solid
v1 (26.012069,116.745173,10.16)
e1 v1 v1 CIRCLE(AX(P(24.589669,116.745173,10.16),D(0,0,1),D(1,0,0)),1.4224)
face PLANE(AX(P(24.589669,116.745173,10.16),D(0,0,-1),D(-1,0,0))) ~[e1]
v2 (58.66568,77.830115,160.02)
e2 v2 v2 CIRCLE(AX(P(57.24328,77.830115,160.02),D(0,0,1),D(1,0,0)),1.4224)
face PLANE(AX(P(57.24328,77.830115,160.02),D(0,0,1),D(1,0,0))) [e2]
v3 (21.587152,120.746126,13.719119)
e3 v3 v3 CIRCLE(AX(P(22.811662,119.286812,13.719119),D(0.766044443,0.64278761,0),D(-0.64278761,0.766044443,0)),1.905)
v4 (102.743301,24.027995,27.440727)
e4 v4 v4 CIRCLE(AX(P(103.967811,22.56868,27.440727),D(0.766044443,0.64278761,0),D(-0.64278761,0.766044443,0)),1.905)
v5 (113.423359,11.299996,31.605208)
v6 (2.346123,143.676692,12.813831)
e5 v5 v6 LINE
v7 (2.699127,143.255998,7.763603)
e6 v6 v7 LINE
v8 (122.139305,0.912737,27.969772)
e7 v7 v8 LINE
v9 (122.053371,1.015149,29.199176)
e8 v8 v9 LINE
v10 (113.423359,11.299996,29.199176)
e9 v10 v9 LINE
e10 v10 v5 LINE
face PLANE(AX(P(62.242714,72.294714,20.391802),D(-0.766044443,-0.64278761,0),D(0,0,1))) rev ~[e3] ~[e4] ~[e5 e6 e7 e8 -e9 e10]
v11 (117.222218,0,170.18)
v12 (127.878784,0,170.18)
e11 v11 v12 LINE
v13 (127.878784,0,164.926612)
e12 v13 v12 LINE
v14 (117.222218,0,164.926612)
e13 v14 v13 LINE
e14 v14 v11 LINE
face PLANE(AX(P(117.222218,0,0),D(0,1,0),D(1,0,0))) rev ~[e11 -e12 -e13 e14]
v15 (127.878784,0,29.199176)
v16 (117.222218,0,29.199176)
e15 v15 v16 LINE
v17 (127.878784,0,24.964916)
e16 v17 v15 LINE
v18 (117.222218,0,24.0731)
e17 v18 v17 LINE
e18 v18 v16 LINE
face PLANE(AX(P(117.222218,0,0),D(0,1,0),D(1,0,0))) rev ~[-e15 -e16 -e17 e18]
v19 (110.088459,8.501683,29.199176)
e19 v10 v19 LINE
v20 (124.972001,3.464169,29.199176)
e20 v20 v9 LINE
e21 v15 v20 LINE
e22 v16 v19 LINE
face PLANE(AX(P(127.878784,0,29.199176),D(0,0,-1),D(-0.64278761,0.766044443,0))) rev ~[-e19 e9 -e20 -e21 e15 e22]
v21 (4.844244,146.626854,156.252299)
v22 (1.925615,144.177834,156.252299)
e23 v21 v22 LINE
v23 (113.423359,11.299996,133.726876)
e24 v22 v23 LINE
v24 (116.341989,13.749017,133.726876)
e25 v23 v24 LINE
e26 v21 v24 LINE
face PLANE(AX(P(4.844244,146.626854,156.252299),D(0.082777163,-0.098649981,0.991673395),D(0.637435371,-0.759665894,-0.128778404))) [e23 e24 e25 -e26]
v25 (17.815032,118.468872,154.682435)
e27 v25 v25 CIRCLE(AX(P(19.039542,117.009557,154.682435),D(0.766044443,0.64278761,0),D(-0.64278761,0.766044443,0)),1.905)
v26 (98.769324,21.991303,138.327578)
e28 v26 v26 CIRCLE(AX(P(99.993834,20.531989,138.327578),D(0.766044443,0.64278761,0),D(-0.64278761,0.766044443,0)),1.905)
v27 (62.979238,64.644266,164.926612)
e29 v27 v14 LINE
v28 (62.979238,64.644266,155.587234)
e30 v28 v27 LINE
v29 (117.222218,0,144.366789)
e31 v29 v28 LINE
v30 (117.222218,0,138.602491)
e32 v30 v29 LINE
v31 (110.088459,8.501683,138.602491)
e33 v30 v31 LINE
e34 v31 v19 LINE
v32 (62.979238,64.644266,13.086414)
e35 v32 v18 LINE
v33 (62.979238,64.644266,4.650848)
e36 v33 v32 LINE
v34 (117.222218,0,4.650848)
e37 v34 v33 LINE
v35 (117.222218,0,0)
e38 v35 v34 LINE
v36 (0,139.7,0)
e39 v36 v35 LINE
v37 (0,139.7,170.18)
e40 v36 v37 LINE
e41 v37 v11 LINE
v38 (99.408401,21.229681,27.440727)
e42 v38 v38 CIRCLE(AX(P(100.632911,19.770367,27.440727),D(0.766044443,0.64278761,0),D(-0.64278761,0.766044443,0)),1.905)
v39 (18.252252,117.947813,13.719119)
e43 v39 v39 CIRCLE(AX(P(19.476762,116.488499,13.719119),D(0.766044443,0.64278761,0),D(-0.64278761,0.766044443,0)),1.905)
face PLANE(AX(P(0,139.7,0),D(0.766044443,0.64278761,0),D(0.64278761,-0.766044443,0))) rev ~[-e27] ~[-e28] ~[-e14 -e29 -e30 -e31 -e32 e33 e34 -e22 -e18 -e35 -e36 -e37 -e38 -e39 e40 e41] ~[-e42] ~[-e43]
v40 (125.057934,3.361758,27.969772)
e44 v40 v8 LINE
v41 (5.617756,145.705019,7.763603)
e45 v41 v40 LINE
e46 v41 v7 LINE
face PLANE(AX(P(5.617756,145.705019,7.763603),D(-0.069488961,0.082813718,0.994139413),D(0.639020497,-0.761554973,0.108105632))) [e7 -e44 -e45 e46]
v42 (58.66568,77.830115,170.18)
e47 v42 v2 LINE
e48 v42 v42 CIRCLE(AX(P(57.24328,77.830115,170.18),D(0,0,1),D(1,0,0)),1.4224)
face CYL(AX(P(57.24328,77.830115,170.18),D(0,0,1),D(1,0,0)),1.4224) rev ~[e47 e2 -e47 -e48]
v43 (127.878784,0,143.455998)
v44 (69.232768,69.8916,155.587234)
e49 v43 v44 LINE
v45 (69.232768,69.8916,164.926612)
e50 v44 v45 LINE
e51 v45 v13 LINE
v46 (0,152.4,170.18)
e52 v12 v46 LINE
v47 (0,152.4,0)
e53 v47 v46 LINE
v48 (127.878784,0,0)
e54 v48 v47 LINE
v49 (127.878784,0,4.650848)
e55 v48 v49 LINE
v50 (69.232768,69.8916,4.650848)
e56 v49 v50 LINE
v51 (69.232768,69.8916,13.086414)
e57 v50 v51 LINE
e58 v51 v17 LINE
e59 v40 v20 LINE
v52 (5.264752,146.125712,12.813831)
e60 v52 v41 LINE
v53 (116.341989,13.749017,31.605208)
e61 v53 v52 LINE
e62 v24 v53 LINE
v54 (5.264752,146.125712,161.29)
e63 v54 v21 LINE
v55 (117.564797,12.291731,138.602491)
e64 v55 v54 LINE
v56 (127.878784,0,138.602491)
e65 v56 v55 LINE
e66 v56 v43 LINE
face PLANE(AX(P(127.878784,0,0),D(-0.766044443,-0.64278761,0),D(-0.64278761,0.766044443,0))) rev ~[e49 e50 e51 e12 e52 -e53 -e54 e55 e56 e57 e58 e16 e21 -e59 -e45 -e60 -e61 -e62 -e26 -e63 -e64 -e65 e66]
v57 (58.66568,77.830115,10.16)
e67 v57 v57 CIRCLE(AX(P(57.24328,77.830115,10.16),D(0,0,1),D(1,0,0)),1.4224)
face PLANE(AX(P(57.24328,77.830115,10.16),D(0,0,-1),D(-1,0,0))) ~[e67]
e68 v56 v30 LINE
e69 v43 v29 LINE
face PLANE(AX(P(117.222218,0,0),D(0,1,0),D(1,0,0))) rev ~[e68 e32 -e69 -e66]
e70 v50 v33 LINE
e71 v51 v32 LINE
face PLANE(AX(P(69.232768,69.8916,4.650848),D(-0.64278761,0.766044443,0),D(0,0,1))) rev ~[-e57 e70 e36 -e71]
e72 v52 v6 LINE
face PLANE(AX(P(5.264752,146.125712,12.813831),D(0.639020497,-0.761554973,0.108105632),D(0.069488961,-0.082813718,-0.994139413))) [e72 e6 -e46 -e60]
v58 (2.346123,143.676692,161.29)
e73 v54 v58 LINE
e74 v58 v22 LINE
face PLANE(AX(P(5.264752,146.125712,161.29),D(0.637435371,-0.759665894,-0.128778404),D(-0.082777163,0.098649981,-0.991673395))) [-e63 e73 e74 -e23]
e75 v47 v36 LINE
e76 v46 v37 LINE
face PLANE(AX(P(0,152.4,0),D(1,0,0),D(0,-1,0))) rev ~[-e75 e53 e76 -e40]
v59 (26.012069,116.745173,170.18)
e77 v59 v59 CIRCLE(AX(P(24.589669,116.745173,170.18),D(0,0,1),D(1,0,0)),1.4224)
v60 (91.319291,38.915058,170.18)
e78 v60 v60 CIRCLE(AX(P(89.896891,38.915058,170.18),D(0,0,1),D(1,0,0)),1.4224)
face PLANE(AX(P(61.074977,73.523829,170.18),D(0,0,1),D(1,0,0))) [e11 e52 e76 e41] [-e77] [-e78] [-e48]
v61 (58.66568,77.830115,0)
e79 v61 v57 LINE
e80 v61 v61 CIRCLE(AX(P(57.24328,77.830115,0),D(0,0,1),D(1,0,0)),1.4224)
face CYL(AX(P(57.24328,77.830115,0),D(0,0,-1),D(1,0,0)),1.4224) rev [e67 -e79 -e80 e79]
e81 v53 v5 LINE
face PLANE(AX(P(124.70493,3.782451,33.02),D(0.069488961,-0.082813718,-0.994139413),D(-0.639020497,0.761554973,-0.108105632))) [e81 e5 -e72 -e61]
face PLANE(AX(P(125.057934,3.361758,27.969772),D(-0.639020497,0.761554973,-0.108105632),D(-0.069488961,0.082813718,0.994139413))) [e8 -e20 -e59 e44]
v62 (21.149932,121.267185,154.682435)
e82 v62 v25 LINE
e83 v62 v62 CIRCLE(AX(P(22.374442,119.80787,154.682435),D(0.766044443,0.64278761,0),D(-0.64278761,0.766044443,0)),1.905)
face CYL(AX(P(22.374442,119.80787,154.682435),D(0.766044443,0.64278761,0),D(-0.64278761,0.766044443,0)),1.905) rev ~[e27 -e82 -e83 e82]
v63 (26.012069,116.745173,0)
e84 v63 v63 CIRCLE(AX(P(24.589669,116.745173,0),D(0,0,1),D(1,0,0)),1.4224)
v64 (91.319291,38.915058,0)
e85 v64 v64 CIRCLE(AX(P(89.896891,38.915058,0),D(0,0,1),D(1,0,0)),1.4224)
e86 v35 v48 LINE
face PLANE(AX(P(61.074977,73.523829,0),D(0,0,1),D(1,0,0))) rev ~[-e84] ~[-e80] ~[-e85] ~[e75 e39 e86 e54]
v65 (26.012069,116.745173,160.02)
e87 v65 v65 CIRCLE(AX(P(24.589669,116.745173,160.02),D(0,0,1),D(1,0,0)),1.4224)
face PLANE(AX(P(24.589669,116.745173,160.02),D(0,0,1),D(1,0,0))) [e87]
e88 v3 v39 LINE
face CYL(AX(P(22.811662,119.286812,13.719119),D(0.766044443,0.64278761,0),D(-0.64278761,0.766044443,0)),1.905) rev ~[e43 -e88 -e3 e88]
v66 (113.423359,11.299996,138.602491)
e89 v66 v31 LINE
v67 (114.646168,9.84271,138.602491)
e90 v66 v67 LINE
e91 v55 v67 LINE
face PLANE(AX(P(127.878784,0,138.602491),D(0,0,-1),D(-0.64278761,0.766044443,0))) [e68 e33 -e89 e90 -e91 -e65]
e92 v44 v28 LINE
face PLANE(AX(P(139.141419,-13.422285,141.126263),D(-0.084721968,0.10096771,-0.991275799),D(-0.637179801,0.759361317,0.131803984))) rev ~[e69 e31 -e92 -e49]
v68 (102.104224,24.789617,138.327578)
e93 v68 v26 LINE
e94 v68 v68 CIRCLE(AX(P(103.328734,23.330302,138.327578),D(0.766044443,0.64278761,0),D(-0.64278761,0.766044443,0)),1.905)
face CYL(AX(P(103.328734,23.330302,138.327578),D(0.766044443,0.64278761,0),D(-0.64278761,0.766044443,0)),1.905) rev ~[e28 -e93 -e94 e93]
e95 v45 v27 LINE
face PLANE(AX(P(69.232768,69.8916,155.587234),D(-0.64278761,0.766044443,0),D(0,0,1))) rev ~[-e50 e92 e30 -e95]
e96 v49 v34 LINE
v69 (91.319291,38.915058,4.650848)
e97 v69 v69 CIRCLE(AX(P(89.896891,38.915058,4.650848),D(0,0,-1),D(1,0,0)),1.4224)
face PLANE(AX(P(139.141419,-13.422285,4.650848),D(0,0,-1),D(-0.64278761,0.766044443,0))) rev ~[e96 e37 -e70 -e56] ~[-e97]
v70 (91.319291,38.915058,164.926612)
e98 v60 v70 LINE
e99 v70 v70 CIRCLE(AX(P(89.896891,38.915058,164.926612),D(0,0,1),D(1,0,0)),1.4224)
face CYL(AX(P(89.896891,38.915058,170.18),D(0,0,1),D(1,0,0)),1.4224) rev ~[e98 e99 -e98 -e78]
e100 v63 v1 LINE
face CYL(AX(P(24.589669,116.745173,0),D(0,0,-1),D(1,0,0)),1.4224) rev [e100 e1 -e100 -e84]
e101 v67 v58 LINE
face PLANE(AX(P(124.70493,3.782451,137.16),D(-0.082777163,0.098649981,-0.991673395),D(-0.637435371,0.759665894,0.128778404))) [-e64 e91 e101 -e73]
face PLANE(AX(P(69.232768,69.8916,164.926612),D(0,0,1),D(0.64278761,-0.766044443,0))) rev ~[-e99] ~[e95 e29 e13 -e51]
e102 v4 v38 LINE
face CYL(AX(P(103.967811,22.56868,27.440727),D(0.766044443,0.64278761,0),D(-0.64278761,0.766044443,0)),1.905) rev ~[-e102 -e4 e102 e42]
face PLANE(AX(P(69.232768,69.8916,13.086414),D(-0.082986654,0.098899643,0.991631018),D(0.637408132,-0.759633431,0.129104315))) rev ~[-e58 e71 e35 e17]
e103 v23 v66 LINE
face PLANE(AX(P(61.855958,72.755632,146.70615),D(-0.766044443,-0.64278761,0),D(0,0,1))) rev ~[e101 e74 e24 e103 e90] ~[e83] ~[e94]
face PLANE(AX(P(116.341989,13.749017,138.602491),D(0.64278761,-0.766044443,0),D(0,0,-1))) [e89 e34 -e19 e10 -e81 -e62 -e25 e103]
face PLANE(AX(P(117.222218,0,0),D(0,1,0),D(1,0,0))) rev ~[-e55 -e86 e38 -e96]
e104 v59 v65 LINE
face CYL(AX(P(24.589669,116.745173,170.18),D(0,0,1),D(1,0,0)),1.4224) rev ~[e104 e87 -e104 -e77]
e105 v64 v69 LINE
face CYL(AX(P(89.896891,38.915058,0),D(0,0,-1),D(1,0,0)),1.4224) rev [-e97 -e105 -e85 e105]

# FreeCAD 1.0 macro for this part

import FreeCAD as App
import Part
import Sketcher
from FreeCAD import Vector
Q = App.Units.Quantity

doc = App.newDocument("Part")
body = doc.addObject("PartDesign::Body", "Body")

# Sketch on XY plane
sketch1 = body.newObject("Sketcher::SketchObject", "Sketch")
sketch1.AttachmentSupport = (doc.getObject("XY_Plane"), [""])
sketch1.MapMode = "FlatFace"
sketch1.addGeometry([
    Part.LineSegment(Vector(0, 140, 0), Vector(117, 0, 0)),
    Part.LineSegment(Vector(117, 0, 0), Vector(128, 0, 0)),
    Part.LineSegment(Vector(128, 0, 0), Vector(0, 152, 0)),
    Part.LineSegment(Vector(0, 152, 0), Vector(0, 140, 0)),
], False)
sketch1.addConstraint([
    Sketcher.Constraint("Coincident", 0, 2, 1, 1),
    Sketcher.Constraint("Coincident", 1, 2, 2, 1),
    Sketcher.Constraint("Coincident", 2, 2, 3, 1),
    Sketcher.Constraint("Coincident", 3, 2, 0, 1),
    Sketcher.Constraint("Horizontal", 1),
    Sketcher.Constraint("Vertical", 3),
    Sketcher.Constraint("PointOnObject", 0, 2, -1),
    Sketcher.Constraint("PointOnObject", 2, 2, -2),
    Sketcher.Constraint("Parallel", 0, 2),
    Sketcher.Constraint("DistanceY", 3, 2, 3, 1, Q("0.5 in")),
    Sketcher.Constraint("DistanceY", -1, 1, 2, 2, Q("6 in")),
    Sketcher.Constraint("Angle", 0, Q("-50 deg")),
])
pad1 = body.newObject("PartDesign::Pad", "Pad")
pad1.Profile = sketch1
pad1.Length = Q("6.7 in")

# Sketch on an angled plane
sketch2 = body.newObject("Sketcher::SketchObject", "Sketch001")
sketch2.Placement = App.Placement(Vector(75.042351, 62.968009, 0), App.Rotation(Vector(0, 0, -1), Vector(-0.64278761, 0.766044443, 0), Vector(0.766044443, 0.64278761, 0), "ZXY"))
sketch2.addGeometry([
    Part.LineSegment(Vector(-161, 109, 0), Vector(-137, -77, 0)),  # 0
    Part.LineSegment(Vector(-137, -77, 0), Vector(-132, -77, 0)),  # 1
    Part.LineSegment(Vector(-132, -77, 0), Vector(-156, 109, 0)),  # 2
    Part.LineSegment(Vector(-156, 109, 0), Vector(-161, 109, 0)),  # 3
    Part.LineSegment(Vector(-13, 109, 0), Vector(-33, -77, 0)),  # 4
    Part.LineSegment(Vector(-33, -77, 0), Vector(-28, -78, 0)),  # 5
    Part.LineSegment(Vector(-28, -78, 0), Vector(-8, 108, 0)),  # 6
    Part.LineSegment(Vector(-8, 108, 0), Vector(-13, 109, 0)),  # 7
], False)
sketch2.addConstraint([
    Sketcher.Constraint("Coincident", 0, 2, 1, 1),
    Sketcher.Constraint("Coincident", 1, 2, 2, 1),
    Sketcher.Constraint("Coincident", 2, 2, 3, 1),
    Sketcher.Constraint("Coincident", 3, 2, 0, 1),
    Sketcher.Constraint("Coincident", 4, 2, 5, 1),
    Sketcher.Constraint("Coincident", 5, 2, 6, 1),
    Sketcher.Constraint("Coincident", 6, 2, 7, 1),
    Sketcher.Constraint("Coincident", 7, 2, 4, 1),
    Sketcher.Constraint("Perpendicular", 0, 1),
    Sketcher.Constraint("Perpendicular", 1, 2),
    Sketcher.Constraint("Perpendicular", 2, 3),
    Sketcher.Constraint("Perpendicular", 4, 5),
    Sketcher.Constraint("Perpendicular", 5, 6),
    Sketcher.Constraint("Perpendicular", 6, 7),
    Sketcher.Constraint("Horizontal", 0, 2, 4, 2),
    Sketcher.Constraint("Horizontal", 3, 2, 7, 2),
    Sketcher.Constraint("Equal", 3, 5),
    Sketcher.Constraint("Distance", 1, Q("0.2 in")),
    Sketcher.Constraint("DistanceX", 0, 2, -1, 1, Q("5.4 in")),
    Sketcher.Constraint("DistanceX", 4, 2, -1, 1, Q("1.3 in")),
    Sketcher.Constraint("DistanceX", 3, 2, -1, 1, Q("6.35 in")),
    Sketcher.Constraint("DistanceY", 5, 2, 2, 2, 187.019302),
    Sketcher.Constraint("Distance", 4, 186.911341),
    Sketcher.Constraint("DistanceY", 0, 2, -1, 1, 77.261258),
])
pocket1 = body.newObject("PartDesign::Pocket", "Pocket")
pocket1.Profile = sketch2
pocket1.Length = Q("0.15 in")

# Sketch on an angled plane
sketch3 = body.newObject("Sketcher::SketchObject", "Sketch002")
sketch3.Placement = App.Placement(Vector(75.042351, 62.968009, 0), App.Rotation(Vector(0, 0, -1), Vector(-0.64278761, 0.766044443, 0), Vector(0.766044443, 0.64278761, 0), "ZXY"))
sketch3.addGeometry([
    Part.LineSegment(Vector(-165, 9, 0), Vector(-165, -100, 0)),  # 0
    Part.LineSegment(Vector(-165, -100, 0), Vector(-141, -100, 0)),  # 1
    Part.LineSegment(Vector(-141, -100, 0), Vector(-156, 9, 0)),  # 2
    Part.LineSegment(Vector(-156, 9, 0), Vector(-165, 9, 0)),  # 3
    Part.LineSegment(Vector(-13, 9, 0), Vector(-27, -100, 0)),  # 4
    Part.LineSegment(Vector(-27, -100, 0), Vector(-5, -100, 0)),  # 5
    Part.LineSegment(Vector(-5, -100, 0), Vector(-5, 9, 0)),  # 6
    Part.LineSegment(Vector(-5, 9, 0), Vector(-13, 9, 0)),  # 7
], False)
sketch3.addConstraint([
    Sketcher.Constraint("Coincident", 0, 2, 1, 1),
    Sketcher.Constraint("Coincident", 1, 2, 2, 1),
    Sketcher.Constraint("Coincident", 2, 2, 3, 1),
    Sketcher.Constraint("Coincident", 3, 2, 0, 1),
    Sketcher.Constraint("Coincident", 4, 2, 5, 1),
    Sketcher.Constraint("Coincident", 5, 2, 6, 1),
    Sketcher.Constraint("Coincident", 6, 2, 7, 1),
    Sketcher.Constraint("Coincident", 7, 2, 4, 1),
    Sketcher.Constraint("Vertical", 0),
    Sketcher.Constraint("Horizontal", 1),
    Sketcher.Constraint("Horizontal", 3),
    Sketcher.Constraint("Horizontal", 5),
    Sketcher.Constraint("Vertical", 6),
    Sketcher.Constraint("Horizontal", 7),
    Sketcher.Constraint("Horizontal", 1, 2, 4, 2),
    Sketcher.Constraint("Horizontal", 3, 2, 6, 2),
    Sketcher.Constraint("DistanceX", 2, 2, 4, 2, Q("5.0528 in")),
    Sketcher.Constraint("DistanceX", 1, 1, 1, 2, 23.800348),
    Sketcher.Constraint("DistanceX", 4, 2, 7, 2, 14.159701),
    Sketcher.Constraint("DistanceX", 3, 2, 3, 1, 9.339377),
    Sketcher.Constraint("DistanceX", 5, 1, 5, 2, 22.595267),
    Sketcher.Constraint("DistanceY", 0, 2, 0, 1, 108.758554),
    Sketcher.Constraint("DistanceX", 0, 2, -1, 1, 164.926612),
    Sketcher.Constraint("DistanceY", 0, 2, -1, 1, 99.720447),
])
pocket2 = body.newObject("PartDesign::Pocket", "Pocket001")
pocket2.Profile = sketch3
pocket2.Length = Q("1 in")

# Sketch on XY plane
sketch4 = body.newObject("Sketcher::SketchObject", "Sketch003")
sketch4.AttachmentSupport = (doc.getObject("XY_Plane"), [""])
sketch4.MapMode = "FlatFace"
sketch4.AttachmentOffset = App.Placement(Vector(0, 0, 6.7 * 25.4), App.Rotation())
sketch4.addGeometry([
    Part.Circle(Vector(24.6, 116.7, 0), Vector(0, 0, 1), 1.4),
    Part.Circle(Vector(57.2, 77.8, 0), Vector(0, 0, 1), 1.4),
    Part.Circle(Vector(89.9, 38.9, 0), Vector(0, 0, 1), 1.4),
], False)
sketch4.addConstraint([
    Sketcher.Constraint("Equal", 0, 1),
    Sketcher.Constraint("Equal", 1, 2),
    Sketcher.Constraint("Diameter", 0, Q("0.112 in")),
    Sketcher.Constraint("DistanceX", -1, 1, 0, 3, 24.589669),
    Sketcher.Constraint("DistanceX", -1, 1, 1, 3, 57.24328),
    Sketcher.Constraint("DistanceX", -1, 1, 2, 3, 89.896891),
    Sketcher.Constraint("DistanceY", -1, 1, 0, 3, 116.745173),
    Sketcher.Constraint("DistanceY", -1, 1, 1, 3, 77.830115),
    Sketcher.Constraint("DistanceY", -1, 1, 2, 3, 38.915058),
])
pocket3 = body.newObject("PartDesign::Pocket", "Pocket002")
pocket3.Profile = sketch4
pocket3.Length = Q("0.4 in")
doc.recompute()

datumplane = body.newObject("PartDesign::Plane", "DatumPlane")
datumplane.AttachmentSupport = (doc.getObject("XY_Plane"), [""])
datumplane.MapMode = "FlatFace"
datumplane.AttachmentOffset = App.Placement(Vector(0, 0, 3.35 * 25.4), App.Rotation())
mirrored = body.newObject("PartDesign::Mirrored", "Mirrored")
mirrored.Originals = [pocket3]
mirrored.MirrorPlane = (datumplane, [""])
body.Tip = mirrored

# Sketch on an angled plane
sketch5 = body.newObject("Sketcher::SketchObject", "Sketch004")
sketch5.Placement = App.Placement(Vector(75.042351, 62.968009, 0), App.Rotation(Vector(0, 0, -1), Vector(-0.64278761, 0.766044443, 0), Vector(0.766044443, 0.64278761, 0), "ZXY"))
sketch5.addGeometry([
    Part.LineSegment(Vector(-139, -64, 0), Vector(-139, -82, 0)),
    Part.LineSegment(Vector(-139, -82, 0), Vector(-29, -82, 0)),
    Part.LineSegment(Vector(-29, -82, 0), Vector(-29, -64, 0)),
    Part.LineSegment(Vector(-29, -64, 0), Vector(-139, -64, 0)),
], False)
sketch5.addConstraint([
    Sketcher.Constraint("Coincident", 0, 2, 1, 1),
    Sketcher.Constraint("Coincident", 1, 2, 2, 1),
    Sketcher.Constraint("Coincident", 2, 2, 3, 1),
    Sketcher.Constraint("Coincident", 3, 2, 0, 1),
    Sketcher.Constraint("Vertical", 0),
    Sketcher.Constraint("Horizontal", 1),
    Sketcher.Constraint("Vertical", 2),
    Sketcher.Constraint("Horizontal", 3),
    Sketcher.Constraint("DistanceX", 1, 1, 1, 2, 109.403315),
    Sketcher.Constraint("DistanceY", 0, 2, 0, 1, 17.948067),
    Sketcher.Constraint("DistanceX", 0, 2, -1, 1, 138.602491),
    Sketcher.Constraint("DistanceY", 2, 2, -1, 1, 64.250831),
])
pocket4 = body.newObject("PartDesign::Pocket", "Pocket003")
pocket4.Profile = sketch5
pocket4.Length = Q("0.5 in")

# Sketch on an angled plane
sketch6 = body.newObject("Sketcher::SketchObject", "Sketch005")
sketch6.Placement = App.Placement(Vector(72.123721, 60.518988, 0), App.Rotation(Vector(0, 0, -1), Vector(-0.64278761, 0.766044443, 0), Vector(0.766044443, 0.64278761, 0), "ZXY"))
sketch6.addGeometry([
    Part.Circle(Vector(-154.7, 77.4, 0), Vector(0, 0, 1), 1.9),
    Part.Circle(Vector(-138.3, -48.5, 0), Vector(0, 0, 1), 1.9),
    Part.Circle(Vector(-13.7, 76.7, 0), Vector(0, 0, 1), 1.9),
    Part.Circle(Vector(-27.4, -49.5, 0), Vector(0, 0, 1), 1.9),
], False)
sketch6.addConstraint([
    Sketcher.Constraint("Equal", 0, 1),
    Sketcher.Constraint("Equal", 1, 2),
    Sketcher.Constraint("Equal", 2, 3),
    Sketcher.Constraint("Diameter", 0, Q("0.15 in")),
    Sketcher.Constraint("DistanceY", -1, 1, 0, 3, 77.396139),
    Sketcher.Constraint("DistanceY", 1, 3, -1, 1, 48.546382),
    Sketcher.Constraint("DistanceX", 2, 3, -1, 1, 13.719119),
    Sketcher.Constraint("DistanceY", 3, 3, -1, 1, 49.540609),
    Sketcher.Constraint("DistanceX", 1, 3, 2, 3, 124.608459),
    Sketcher.Constraint("DistanceX", 1, 3, 3, 3, 110.886851),
    Sketcher.Constraint("DistanceX", 0, 3, 3, 3, 127.241708),
    Sketcher.Constraint("DistanceY", -1, 1, 2, 3, 76.715946),
])
pocket5 = body.newObject("PartDesign::Pocket", "Pocket004")
pocket5.Profile = sketch6
pocket5.Length = Q("0.5 in")

doc.recompute()
